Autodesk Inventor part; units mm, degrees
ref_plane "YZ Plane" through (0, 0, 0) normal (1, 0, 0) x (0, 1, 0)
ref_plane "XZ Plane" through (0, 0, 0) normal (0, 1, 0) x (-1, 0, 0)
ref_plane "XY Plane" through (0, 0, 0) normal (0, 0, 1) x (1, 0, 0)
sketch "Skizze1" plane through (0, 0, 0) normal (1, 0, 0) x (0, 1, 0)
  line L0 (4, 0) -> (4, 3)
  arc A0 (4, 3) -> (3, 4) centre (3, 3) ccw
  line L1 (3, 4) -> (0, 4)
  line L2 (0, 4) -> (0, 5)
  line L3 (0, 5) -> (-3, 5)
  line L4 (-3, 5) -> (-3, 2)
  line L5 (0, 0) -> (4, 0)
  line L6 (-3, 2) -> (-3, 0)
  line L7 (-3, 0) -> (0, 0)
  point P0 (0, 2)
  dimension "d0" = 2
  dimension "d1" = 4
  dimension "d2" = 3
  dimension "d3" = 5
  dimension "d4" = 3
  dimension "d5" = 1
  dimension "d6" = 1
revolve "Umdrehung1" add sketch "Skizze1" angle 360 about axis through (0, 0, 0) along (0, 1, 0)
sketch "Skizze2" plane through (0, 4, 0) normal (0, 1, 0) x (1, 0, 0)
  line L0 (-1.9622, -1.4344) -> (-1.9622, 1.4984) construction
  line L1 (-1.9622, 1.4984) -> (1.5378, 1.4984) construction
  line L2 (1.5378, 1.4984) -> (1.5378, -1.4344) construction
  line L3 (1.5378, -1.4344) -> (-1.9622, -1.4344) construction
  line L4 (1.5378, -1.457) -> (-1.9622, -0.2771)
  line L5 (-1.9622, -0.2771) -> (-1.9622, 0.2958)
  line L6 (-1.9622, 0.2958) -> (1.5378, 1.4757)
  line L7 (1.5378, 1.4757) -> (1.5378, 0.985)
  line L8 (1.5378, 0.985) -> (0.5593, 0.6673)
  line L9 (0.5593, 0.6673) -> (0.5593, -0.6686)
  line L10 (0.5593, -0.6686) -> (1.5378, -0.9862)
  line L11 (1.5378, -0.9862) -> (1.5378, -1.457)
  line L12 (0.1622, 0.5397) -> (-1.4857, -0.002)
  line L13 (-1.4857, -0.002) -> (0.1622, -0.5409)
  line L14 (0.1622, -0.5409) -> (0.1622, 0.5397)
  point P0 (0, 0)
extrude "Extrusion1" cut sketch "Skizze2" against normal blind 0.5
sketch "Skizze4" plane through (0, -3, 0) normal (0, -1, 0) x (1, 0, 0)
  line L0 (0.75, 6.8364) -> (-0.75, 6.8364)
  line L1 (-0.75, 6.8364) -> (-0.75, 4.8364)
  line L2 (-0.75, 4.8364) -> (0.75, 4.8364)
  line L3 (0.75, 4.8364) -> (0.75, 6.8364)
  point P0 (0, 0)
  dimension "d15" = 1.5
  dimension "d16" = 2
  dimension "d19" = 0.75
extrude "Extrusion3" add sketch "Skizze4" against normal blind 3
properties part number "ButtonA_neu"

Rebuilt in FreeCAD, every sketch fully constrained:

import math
import FreeCAD as App
import Part
import Sketcher

V = App.Vector
Q = App.Units.Quantity


def add_polygon(sketch, points):
    """Adds a closed chain of lines whose ends are joined by coincident constraints."""
    first, n = sketch.GeometryCount, len(points)
    for a, b in zip(points, points[1:] + points[:1]):
        sketch.addGeometry(Part.LineSegment(App.Vector(*a, 0), App.Vector(*b, 0)), False)
    for i in range(n):
        sketch.addConstraint(Sketcher.Constraint("Coincident", first + i, 2, first + (i + 1) % n, 1))

doc = App.newDocument("Part")
body = doc.addObject("PartDesign::Body", "Body")

sketch1 = body.newObject("Sketcher::SketchObject", "Sketch")
sketch1.AttachmentSupport = (doc.getObject("YZ_Plane"), [""])
sketch1.MapMode = "FlatFace"
sketch1.addGeometry(Part.LineSegment(V(-3, 0, 0), V(4, 0, 0)), False)
sketch1.addGeometry(Part.LineSegment(V(4, 0, 0), V(4, 3, 0)), False)
sketch1.addGeometry(Part.ArcOfCircle(Part.Circle(V(3, 3, 0), V(0, 0, 1), 1), math.radians(0), math.radians(90)), False)
sketch1.addGeometry(Part.LineSegment(V(3, 4, 0), V(0, 4, 0)), False)
sketch1.addGeometry(Part.LineSegment(V(0, 4, 0), V(0, 5, 0)), False)
sketch1.addGeometry(Part.LineSegment(V(0, 5, 0), V(-3, 5, 0)), False)
sketch1.addGeometry(Part.LineSegment(V(-3, 5, 0), V(-3, 0, 0)), False)
sketch1.addConstraint(Sketcher.Constraint("Coincident", 0, 2, 1, 1))
sketch1.addConstraint(Sketcher.Constraint("Tangent", 1, 2, 2, 1))
sketch1.addConstraint(Sketcher.Constraint("Tangent", 2, 2, 3, 1))
sketch1.addConstraint(Sketcher.Constraint("Coincident", 3, 2, 4, 1))
sketch1.addConstraint(Sketcher.Constraint("Coincident", 4, 2, 5, 1))
sketch1.addConstraint(Sketcher.Constraint("Coincident", 5, 2, 6, 1))
sketch1.addConstraint(Sketcher.Constraint("Coincident", 6, 2, 0, 1))
sketch1.addConstraint(Sketcher.Constraint("Horizontal", 0))
sketch1.addConstraint(Sketcher.Constraint("Vertical", 1))
sketch1.addConstraint(Sketcher.Constraint("Horizontal", 3))
sketch1.addConstraint(Sketcher.Constraint("Vertical", 4))
sketch1.addConstraint(Sketcher.Constraint("Horizontal", 5))
sketch1.addConstraint(Sketcher.Constraint("Vertical", 6))
sketch1.addConstraint(Sketcher.Constraint("PointOnObject", 0, 2, -1))
sketch1.addConstraint(Sketcher.Constraint("PointOnObject", 3, 2, -2))
sketch1.addConstraint(Sketcher.Constraint("Equal", 3, 5))
sketch1.addConstraint(Sketcher.Constraint("Equal", 5, 1))
sketch1.addConstraint(Sketcher.Constraint("Radius", 2, Q("1 mm")))
sketch1.addConstraint(Sketcher.Constraint("DistanceX", 3, 2, 3, 1, Q("3 mm")))
sketch1.addConstraint(Sketcher.Constraint("DistanceY", 4, 1, 4, 2, Q("1 mm")))
revolution = body.newObject("PartDesign::Revolution", "Revolution")
revolution.Profile = sketch1
revolution.ReferenceAxis = (sketch1, ["H_Axis"])
revolution.Angle = 360

sketch2 = body.newObject("Sketcher::SketchObject", "Sketch001")
sketch2.AttachmentSupport = (doc.getObject("XZ_Plane"), [""])
sketch2.MapMode = "FlatFace"
sketch2.AttachmentOffset = App.Placement(V(0, 0, -4), App.Rotation())
add_polygon(sketch2, [(-1.96, 0.28), (1.54, 1.46), (1.54, 0.99), (0.56, 0.67), (0.56, -0.67), (1.54, -0.98), (1.54, -1.48), (-1.96, -0.3)])
add_polygon(sketch2, [(-1.49, 0), (0.16, -0.54), (0.16, 0.54)])
sketch2.addConstraint(Sketcher.Constraint("Vertical", 1))
sketch2.addConstraint(Sketcher.Constraint("Vertical", 3))
sketch2.addConstraint(Sketcher.Constraint("Vertical", 5))
sketch2.addConstraint(Sketcher.Constraint("Vertical", 7))
sketch2.addConstraint(Sketcher.Constraint("Vertical", 9))
sketch2.addConstraint(Sketcher.Constraint("Vertical", 1, 2, 4, 2))
sketch2.addConstraint(Sketcher.Constraint("Equal", 2, 4))
sketch2.addConstraint(Sketcher.Constraint("Equal", 0, 6))
sketch2.addConstraint(Sketcher.Constraint("Angle", 0, Q("18.6297 deg")))
sketch2.addConstraint(Sketcher.Constraint("Angle", 10, Q("-161.891 deg")))
sketch2.addConstraint(Sketcher.Constraint("DistanceX", 6, 2, 4, 2, Q("3.5 mm")))
sketch2.addConstraint(Sketcher.Constraint("DistanceY", 3, 2, 3, 1, Q("1.336 mm")))
sketch2.addConstraint(Sketcher.Constraint("DistanceY", 7, 1, 7, 2, Q("0.573 mm")))
sketch2.addConstraint(Sketcher.Constraint("DistanceY", 1, 2, 1, 1, Q("0.4708 mm")))
sketch2.addConstraint(Sketcher.Constraint("DistanceY", 5, 2, 5, 1, Q("0.4907 mm")))
sketch2.addConstraint(Sketcher.Constraint("DistanceY", 9, 1, 9, 2, Q("1.0806 mm")))
sketch2.addConstraint(Sketcher.Constraint("DistanceY", -1, 1, 0, 2, Q("1.457 mm")))
sketch2.addConstraint(Sketcher.Constraint("DistanceY", -1, 1, 9, 2, Q("0.541 mm")))
sketch2.addConstraint(Sketcher.Constraint("DistanceY", -1, 1, 10, 2, Q("0.002 mm")))
sketch2.addConstraint(Sketcher.Constraint("DistanceX", 8, 2, 3, 2, Q("0.397 mm")))
sketch2.addConstraint(Sketcher.Constraint("Distance", 2, Q("1.0288 mm")))
sketch2.addConstraint(Sketcher.Constraint("DistanceX", -1, 1, 0, 2, Q("1.5378 mm")))
pocket1 = body.newObject("PartDesign::Pocket", "Pocket")
pocket1.Profile = sketch2
pocket1.Length = 0.5
pocket1.Reversed = True

sketch3 = body.newObject("Sketcher::SketchObject", "Sketch002")
sketch3.AttachmentSupport = (doc.getObject("XZ_Plane"), [""])
sketch3.MapMode = "FlatFace"
sketch3.AttachmentOffset = App.Placement(V(0, 0, 3), App.Rotation())
add_polygon(sketch3, [(0.8, 4.8), (0.8, 6.8), (-0.8, 6.8), (-0.8, 4.8)])
sketch3.addConstraint(Sketcher.Constraint("Vertical", 0))
sketch3.addConstraint(Sketcher.Constraint("Horizontal", 1))
sketch3.addConstraint(Sketcher.Constraint("Vertical", 2))
sketch3.addConstraint(Sketcher.Constraint("Horizontal", 3))
sketch3.addConstraint(Sketcher.Constraint("DistanceY", 0, 1, 0, 2, Q("2 mm")))
sketch3.addConstraint(Sketcher.Constraint("DistanceX", 1, 2, 1, 1, Q("1.5 mm")))
sketch3.addConstraint(Sketcher.Constraint("DistanceX", -1, 1, 0, 2, Q("0.75 mm")))
sketch3.addConstraint(Sketcher.Constraint("DistanceY", -1, 1, 0, 2, Q("6.8364 mm")))
pad1 = body.newObject("PartDesign::Pad", "Pad")
pad1.Profile = sketch3
pad1.Length = 3
pad1.Reversed = True

doc.recompute()
